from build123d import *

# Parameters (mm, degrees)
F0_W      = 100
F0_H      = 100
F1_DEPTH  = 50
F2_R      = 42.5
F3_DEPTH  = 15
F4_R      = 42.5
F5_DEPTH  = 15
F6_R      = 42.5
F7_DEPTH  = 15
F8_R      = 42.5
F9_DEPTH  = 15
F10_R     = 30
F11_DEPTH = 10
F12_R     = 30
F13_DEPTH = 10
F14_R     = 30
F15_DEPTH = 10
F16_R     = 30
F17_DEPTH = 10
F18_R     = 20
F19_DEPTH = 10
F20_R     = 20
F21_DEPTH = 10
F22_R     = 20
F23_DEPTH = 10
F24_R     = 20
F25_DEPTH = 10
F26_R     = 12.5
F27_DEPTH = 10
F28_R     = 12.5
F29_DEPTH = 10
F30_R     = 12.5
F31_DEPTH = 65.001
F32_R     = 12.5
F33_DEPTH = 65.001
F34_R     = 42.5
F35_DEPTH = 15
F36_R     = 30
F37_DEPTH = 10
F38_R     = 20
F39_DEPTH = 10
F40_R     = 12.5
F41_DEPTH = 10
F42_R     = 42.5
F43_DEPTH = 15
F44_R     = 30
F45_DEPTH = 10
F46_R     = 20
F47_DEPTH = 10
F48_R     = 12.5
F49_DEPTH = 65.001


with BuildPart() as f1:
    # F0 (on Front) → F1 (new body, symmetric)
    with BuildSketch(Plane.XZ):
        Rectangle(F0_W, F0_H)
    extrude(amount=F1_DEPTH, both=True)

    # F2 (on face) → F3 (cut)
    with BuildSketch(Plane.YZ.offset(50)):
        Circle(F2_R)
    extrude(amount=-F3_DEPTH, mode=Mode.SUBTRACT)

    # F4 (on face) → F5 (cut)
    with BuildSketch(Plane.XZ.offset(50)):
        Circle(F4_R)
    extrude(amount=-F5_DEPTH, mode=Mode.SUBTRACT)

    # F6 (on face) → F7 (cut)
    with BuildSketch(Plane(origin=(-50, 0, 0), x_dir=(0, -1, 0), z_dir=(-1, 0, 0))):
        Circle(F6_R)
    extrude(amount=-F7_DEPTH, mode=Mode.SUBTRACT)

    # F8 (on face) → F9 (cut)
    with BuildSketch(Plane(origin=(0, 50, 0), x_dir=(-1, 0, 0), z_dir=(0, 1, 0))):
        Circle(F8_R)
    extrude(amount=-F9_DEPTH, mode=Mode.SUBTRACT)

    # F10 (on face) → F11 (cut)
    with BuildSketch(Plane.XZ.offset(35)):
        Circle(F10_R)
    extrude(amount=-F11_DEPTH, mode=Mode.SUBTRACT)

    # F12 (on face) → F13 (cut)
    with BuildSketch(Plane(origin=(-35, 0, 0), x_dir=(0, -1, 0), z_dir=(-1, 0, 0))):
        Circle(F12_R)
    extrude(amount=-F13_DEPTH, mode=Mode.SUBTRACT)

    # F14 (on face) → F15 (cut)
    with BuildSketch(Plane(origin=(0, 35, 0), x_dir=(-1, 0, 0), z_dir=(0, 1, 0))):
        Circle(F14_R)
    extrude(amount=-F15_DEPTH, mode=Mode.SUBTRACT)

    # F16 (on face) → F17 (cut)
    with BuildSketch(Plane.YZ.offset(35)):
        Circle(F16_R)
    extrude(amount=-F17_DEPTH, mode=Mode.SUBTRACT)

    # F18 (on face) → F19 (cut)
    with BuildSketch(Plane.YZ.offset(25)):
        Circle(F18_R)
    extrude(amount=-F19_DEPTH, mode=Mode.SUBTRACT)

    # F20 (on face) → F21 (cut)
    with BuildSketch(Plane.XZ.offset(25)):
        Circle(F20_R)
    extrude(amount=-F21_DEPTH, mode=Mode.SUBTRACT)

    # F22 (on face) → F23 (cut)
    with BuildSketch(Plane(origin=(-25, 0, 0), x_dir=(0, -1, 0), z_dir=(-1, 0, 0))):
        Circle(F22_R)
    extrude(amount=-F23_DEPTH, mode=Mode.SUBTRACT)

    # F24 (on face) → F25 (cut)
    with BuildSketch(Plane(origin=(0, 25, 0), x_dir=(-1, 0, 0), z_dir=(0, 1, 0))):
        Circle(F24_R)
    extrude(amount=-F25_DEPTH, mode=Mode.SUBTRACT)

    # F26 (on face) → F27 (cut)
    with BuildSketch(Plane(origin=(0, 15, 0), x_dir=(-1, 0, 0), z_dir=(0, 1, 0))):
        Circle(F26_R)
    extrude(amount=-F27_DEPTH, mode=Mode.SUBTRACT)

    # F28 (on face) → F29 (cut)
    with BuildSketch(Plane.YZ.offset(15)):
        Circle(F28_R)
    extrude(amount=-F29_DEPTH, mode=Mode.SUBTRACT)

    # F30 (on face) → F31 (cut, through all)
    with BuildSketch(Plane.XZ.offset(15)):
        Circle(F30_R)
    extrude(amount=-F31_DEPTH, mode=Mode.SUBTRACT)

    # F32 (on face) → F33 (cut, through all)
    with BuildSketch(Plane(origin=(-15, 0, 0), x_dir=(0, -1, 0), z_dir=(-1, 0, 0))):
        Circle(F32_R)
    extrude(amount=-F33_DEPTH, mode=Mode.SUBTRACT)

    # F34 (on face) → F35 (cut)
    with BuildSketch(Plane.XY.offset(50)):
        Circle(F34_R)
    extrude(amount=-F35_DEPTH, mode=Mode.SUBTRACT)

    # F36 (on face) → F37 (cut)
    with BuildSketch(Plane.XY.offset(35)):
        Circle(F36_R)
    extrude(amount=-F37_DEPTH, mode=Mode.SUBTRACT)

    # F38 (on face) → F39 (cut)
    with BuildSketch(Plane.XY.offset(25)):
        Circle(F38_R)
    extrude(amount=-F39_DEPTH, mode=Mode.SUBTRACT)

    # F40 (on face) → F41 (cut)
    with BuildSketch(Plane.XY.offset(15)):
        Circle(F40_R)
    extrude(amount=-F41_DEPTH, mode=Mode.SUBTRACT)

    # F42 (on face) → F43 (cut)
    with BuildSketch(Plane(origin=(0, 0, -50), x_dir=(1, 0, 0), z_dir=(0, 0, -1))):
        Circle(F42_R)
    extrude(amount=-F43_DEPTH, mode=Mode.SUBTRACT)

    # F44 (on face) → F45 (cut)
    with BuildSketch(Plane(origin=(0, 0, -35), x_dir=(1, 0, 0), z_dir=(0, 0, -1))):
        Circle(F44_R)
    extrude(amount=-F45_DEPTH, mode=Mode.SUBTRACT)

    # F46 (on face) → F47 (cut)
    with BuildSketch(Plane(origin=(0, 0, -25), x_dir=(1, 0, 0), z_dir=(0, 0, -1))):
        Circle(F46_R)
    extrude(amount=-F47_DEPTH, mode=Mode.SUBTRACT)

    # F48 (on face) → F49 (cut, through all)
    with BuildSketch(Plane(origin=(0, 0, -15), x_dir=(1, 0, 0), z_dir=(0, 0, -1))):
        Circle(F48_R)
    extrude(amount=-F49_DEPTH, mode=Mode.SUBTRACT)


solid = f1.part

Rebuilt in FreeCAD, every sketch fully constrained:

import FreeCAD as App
import Part
import Sketcher
Q = App.Units.Quantity

doc = App.newDocument("Part")
body = doc.addObject("PartDesign::Body", "Body")

# Sketch on XZ plane
sketch1 = doc.addObject("Sketcher::SketchObject", "Sketch")
body.addObject(sketch1)
sketch1.AttachmentSupport = (doc.XZ_Plane, [""])
sketch1.MapMode = "FlatFace"
sketch1.addGeometry([
    Part.LineSegment(App.Vector(-50, 50, 0), App.Vector(-50, -50, 0)),
    Part.LineSegment(App.Vector(-50, -50, 0), App.Vector(50, -50, 0)),
    Part.LineSegment(App.Vector(50, -50, 0), App.Vector(50, 50, 0)),
    Part.LineSegment(App.Vector(50, 50, 0), App.Vector(-50, 50, 0)),
], False)
sketch1.addConstraint([
    Sketcher.Constraint("Coincident", 0, 2, 1, 1),
    Sketcher.Constraint("Coincident", 1, 2, 2, 1),
    Sketcher.Constraint("Coincident", 2, 2, 3, 1),
    Sketcher.Constraint("Coincident", 3, 2, 0, 1),
    Sketcher.Constraint("Vertical", 0),
    Sketcher.Constraint("Horizontal", 1),
    Sketcher.Constraint("Vertical", 2),
    Sketcher.Constraint("Horizontal", 3),
    Sketcher.Constraint("Symmetric", 0, 2, 2, 2, -1, 1),
    Sketcher.Constraint("Equal", 3, 0),
    Sketcher.Constraint("DistanceX", 1, 1, 1, 2, Q("100 mm")),
])
pad1 = doc.addObject("PartDesign::Pad", "Pad")
body.addObject(pad1)
pad1.Profile = sketch1
pad1.Length = 100
pad1.Midplane = True

# Sketch on YZ plane
sketch2 = doc.addObject("Sketcher::SketchObject", "Sketch001")
body.addObject(sketch2)
sketch2.AttachmentSupport = (doc.YZ_Plane, [""])
sketch2.MapMode = "FlatFace"
sketch2.AttachmentOffset = App.Placement(App.Vector(0, 0, 50), App.Rotation())
sketch2.addGeometry(Part.Circle(App.Vector(0, 0, 0), App.Vector(0, 0, 1), 42), False)
sketch2.addConstraint([
    Sketcher.Constraint("Coincident", 0, 3, -1, 1),
    Sketcher.Constraint("Diameter", 0, Q("85 mm")),
])
pocket1 = doc.addObject("PartDesign::Pocket", "Pocket")
body.addObject(pocket1)
pocket1.Profile = sketch2
pocket1.Length = 15

# Sketch on XZ plane
sketch3 = doc.addObject("Sketcher::SketchObject", "Sketch002")
body.addObject(sketch3)
sketch3.AttachmentSupport = (doc.XZ_Plane, [""])
sketch3.MapMode = "FlatFace"
sketch3.AttachmentOffset = App.Placement(App.Vector(0, 0, 50), App.Rotation())
sketch3.addGeometry(Part.Circle(App.Vector(0, 0, 0), App.Vector(0, 0, 1), 42), False)
sketch3.addConstraint([
    Sketcher.Constraint("Coincident", 0, 3, -1, 1),
    Sketcher.Constraint("Diameter", 0, Q("85 mm")),
])
pocket2 = doc.addObject("PartDesign::Pocket", "Pocket001")
body.addObject(pocket2)
pocket2.Profile = sketch3
pocket2.Length = 15

# Sketch on YZ plane
sketch4 = doc.addObject("Sketcher::SketchObject", "Sketch003")
body.addObject(sketch4)
sketch4.AttachmentSupport = (doc.YZ_Plane, [""])
sketch4.MapMode = "FlatFace"
sketch4.AttachmentOffset = App.Placement(App.Vector(0, 0, -50), App.Rotation())
sketch4.addGeometry(Part.Circle(App.Vector(0, 0, 0), App.Vector(0, 0, 1), 42), False)
sketch4.addConstraint([
    Sketcher.Constraint("Coincident", 0, 3, -1, 1),
    Sketcher.Constraint("Diameter", 0, Q("85 mm")),
])
pocket3 = doc.addObject("PartDesign::Pocket", "Pocket002")
body.addObject(pocket3)
pocket3.Profile = sketch4
pocket3.Length = 15
pocket3.Reversed = True

# Sketch on XZ plane
sketch5 = doc.addObject("Sketcher::SketchObject", "Sketch004")
body.addObject(sketch5)
sketch5.AttachmentSupport = (doc.XZ_Plane, [""])
sketch5.MapMode = "FlatFace"
sketch5.AttachmentOffset = App.Placement(App.Vector(0, 0, -50), App.Rotation())
sketch5.addGeometry(Part.Circle(App.Vector(0, 0, 0), App.Vector(0, 0, 1), 42), False)
sketch5.addConstraint([
    Sketcher.Constraint("Coincident", 0, 3, -1, 1),
    Sketcher.Constraint("Diameter", 0, Q("85 mm")),
])
pocket4 = doc.addObject("PartDesign::Pocket", "Pocket003")
body.addObject(pocket4)
pocket4.Profile = sketch5
pocket4.Length = 15
pocket4.Reversed = True

# Sketch on XZ plane
sketch6 = doc.addObject("Sketcher::SketchObject", "Sketch005")
body.addObject(sketch6)
sketch6.AttachmentSupport = (doc.XZ_Plane, [""])
sketch6.MapMode = "FlatFace"
sketch6.AttachmentOffset = App.Placement(App.Vector(0, 0, 35), App.Rotation())
sketch6.addGeometry(Part.Circle(App.Vector(0, 0, 0), App.Vector(0, 0, 1), 30), False)
sketch6.addConstraint([
    Sketcher.Constraint("Coincident", 0, 3, -1, 1),
    Sketcher.Constraint("Diameter", 0, Q("60 mm")),
])
pocket5 = doc.addObject("PartDesign::Pocket", "Pocket004")
body.addObject(pocket5)
pocket5.Profile = sketch6
pocket5.Length = 10

# Sketch on YZ plane
sketch7 = doc.addObject("Sketcher::SketchObject", "Sketch006")
body.addObject(sketch7)
sketch7.AttachmentSupport = (doc.YZ_Plane, [""])
sketch7.MapMode = "FlatFace"
sketch7.AttachmentOffset = App.Placement(App.Vector(0, 0, -35), App.Rotation())
sketch7.addGeometry(Part.Circle(App.Vector(0, 0, 0), App.Vector(0, 0, 1), 30), False)
sketch7.addConstraint([
    Sketcher.Constraint("Coincident", 0, 3, -1, 1),
    Sketcher.Constraint("Diameter", 0, Q("60 mm")),
])
pocket6 = doc.addObject("PartDesign::Pocket", "Pocket005")
body.addObject(pocket6)
pocket6.Profile = sketch7
pocket6.Length = 10
pocket6.Reversed = True

# Sketch on XZ plane
sketch8 = doc.addObject("Sketcher::SketchObject", "Sketch007")
body.addObject(sketch8)
sketch8.AttachmentSupport = (doc.XZ_Plane, [""])
sketch8.MapMode = "FlatFace"
sketch8.AttachmentOffset = App.Placement(App.Vector(0, 0, -35), App.Rotation())
sketch8.addGeometry(Part.Circle(App.Vector(0, 0, 0), App.Vector(0, 0, 1), 30), False)
sketch8.addConstraint([
    Sketcher.Constraint("Coincident", 0, 3, -1, 1),
    Sketcher.Constraint("Diameter", 0, Q("60 mm")),
])
pocket7 = doc.addObject("PartDesign::Pocket", "Pocket006")
body.addObject(pocket7)
pocket7.Profile = sketch8
pocket7.Length = 10
pocket7.Reversed = True

# Sketch on YZ plane
sketch9 = doc.addObject("Sketcher::SketchObject", "Sketch008")
body.addObject(sketch9)
sketch9.AttachmentSupport = (doc.YZ_Plane, [""])
sketch9.MapMode = "FlatFace"
sketch9.AttachmentOffset = App.Placement(App.Vector(0, 0, 35), App.Rotation())
sketch9.addGeometry(Part.Circle(App.Vector(0, 0, 0), App.Vector(0, 0, 1), 30), False)
sketch9.addConstraint([
    Sketcher.Constraint("Coincident", 0, 3, -1, 1),
    Sketcher.Constraint("Diameter", 0, Q("60 mm")),
])
pocket8 = doc.addObject("PartDesign::Pocket", "Pocket007")
body.addObject(pocket8)
pocket8.Profile = sketch9
pocket8.Length = 10

# Sketch on YZ plane
sketch10 = doc.addObject("Sketcher::SketchObject", "Sketch009")
body.addObject(sketch10)
sketch10.AttachmentSupport = (doc.YZ_Plane, [""])
sketch10.MapMode = "FlatFace"
sketch10.AttachmentOffset = App.Placement(App.Vector(0, 0, 25), App.Rotation())
sketch10.addGeometry(Part.Circle(App.Vector(0, 0, 0), App.Vector(0, 0, 1), 20), False)
sketch10.addConstraint([
    Sketcher.Constraint("Coincident", 0, 3, -1, 1),
    Sketcher.Constraint("Diameter", 0, Q("40 mm")),
])
pocket9 = doc.addObject("PartDesign::Pocket", "Pocket008")
body.addObject(pocket9)
pocket9.Profile = sketch10
pocket9.Length = 10

# Sketch on XZ plane
sketch11 = doc.addObject("Sketcher::SketchObject", "Sketch010")
body.addObject(sketch11)
sketch11.AttachmentSupport = (doc.XZ_Plane, [""])
sketch11.MapMode = "FlatFace"
sketch11.AttachmentOffset = App.Placement(App.Vector(0, 0, 25), App.Rotation())
sketch11.addGeometry(Part.Circle(App.Vector(0, 0, 0), App.Vector(0, 0, 1), 20), False)
sketch11.addConstraint([
    Sketcher.Constraint("Coincident", 0, 3, -1, 1),
    Sketcher.Constraint("Diameter", 0, Q("40 mm")),
])
pocket10 = doc.addObject("PartDesign::Pocket", "Pocket009")
body.addObject(pocket10)
pocket10.Profile = sketch11
pocket10.Length = 10

# Sketch on YZ plane
sketch12 = doc.addObject("Sketcher::SketchObject", "Sketch011")
body.addObject(sketch12)
sketch12.AttachmentSupport = (doc.YZ_Plane, [""])
sketch12.MapMode = "FlatFace"
sketch12.AttachmentOffset = App.Placement(App.Vector(0, 0, -25), App.Rotation())
sketch12.addGeometry(Part.Circle(App.Vector(0, 0, 0), App.Vector(0, 0, 1), 20), False)
sketch12.addConstraint([
    Sketcher.Constraint("Coincident", 0, 3, -1, 1),
    Sketcher.Constraint("Diameter", 0, Q("40 mm")),
])
pocket11 = doc.addObject("PartDesign::Pocket", "Pocket010")
body.addObject(pocket11)
pocket11.Profile = sketch12
pocket11.Length = 10
pocket11.Reversed = True

# Sketch on XZ plane
sketch13 = doc.addObject("Sketcher::SketchObject", "Sketch012")
body.addObject(sketch13)
sketch13.AttachmentSupport = (doc.XZ_Plane, [""])
sketch13.MapMode = "FlatFace"
sketch13.AttachmentOffset = App.Placement(App.Vector(0, 0, -25), App.Rotation())
sketch13.addGeometry(Part.Circle(App.Vector(0, 0, 0), App.Vector(0, 0, 1), 20), False)
sketch13.addConstraint([
    Sketcher.Constraint("Coincident", 0, 3, -1, 1),
    Sketcher.Constraint("Diameter", 0, Q("40 mm")),
])
pocket12 = doc.addObject("PartDesign::Pocket", "Pocket011")
body.addObject(pocket12)
pocket12.Profile = sketch13
pocket12.Length = 10
pocket12.Reversed = True

# Sketch on XZ plane
sketch14 = doc.addObject("Sketcher::SketchObject", "Sketch013")
body.addObject(sketch14)
sketch14.AttachmentSupport = (doc.XZ_Plane, [""])
sketch14.MapMode = "FlatFace"
sketch14.AttachmentOffset = App.Placement(App.Vector(0, 0, -15), App.Rotation())
sketch14.addGeometry(Part.Circle(App.Vector(0, 0, 0), App.Vector(0, 0, 1), 12), False)
sketch14.addConstraint([
    Sketcher.Constraint("Coincident", 0, 3, -1, 1),
    Sketcher.Constraint("Diameter", 0, Q("25 mm")),
])
pocket13 = doc.addObject("PartDesign::Pocket", "Pocket012")
body.addObject(pocket13)
pocket13.Profile = sketch14
pocket13.Length = 10
pocket13.Reversed = True

# Sketch on YZ plane
sketch15 = doc.addObject("Sketcher::SketchObject", "Sketch014")
body.addObject(sketch15)
sketch15.AttachmentSupport = (doc.YZ_Plane, [""])
sketch15.MapMode = "FlatFace"
sketch15.AttachmentOffset = App.Placement(App.Vector(0, 0, 15), App.Rotation())
sketch15.addGeometry(Part.Circle(App.Vector(0, 0, 0), App.Vector(0, 0, 1), 12), False)
sketch15.addConstraint([
    Sketcher.Constraint("Coincident", 0, 3, -1, 1),
    Sketcher.Constraint("Diameter", 0, Q("25 mm")),
])
pocket14 = doc.addObject("PartDesign::Pocket", "Pocket013")
body.addObject(pocket14)
pocket14.Profile = sketch15
pocket14.Length = 10

# Sketch on XZ plane
sketch16 = doc.addObject("Sketcher::SketchObject", "Sketch015")
body.addObject(sketch16)
sketch16.AttachmentSupport = (doc.XZ_Plane, [""])
sketch16.MapMode = "FlatFace"
sketch16.AttachmentOffset = App.Placement(App.Vector(0, 0, 15), App.Rotation())
sketch16.addGeometry(Part.Circle(App.Vector(0, 0, 0), App.Vector(0, 0, 1), 12), False)
sketch16.addConstraint([
    Sketcher.Constraint("Coincident", 0, 3, -1, 1),
    Sketcher.Constraint("Diameter", 0, Q("25 mm")),
])
pocket15 = doc.addObject("PartDesign::Pocket", "Pocket014")
body.addObject(pocket15)
pocket15.Profile = sketch16
pocket15.Type = "ThroughAll"

# Sketch on YZ plane
sketch17 = doc.addObject("Sketcher::SketchObject", "Sketch016")
body.addObject(sketch17)
sketch17.AttachmentSupport = (doc.YZ_Plane, [""])
sketch17.MapMode = "FlatFace"
sketch17.AttachmentOffset = App.Placement(App.Vector(0, 0, -15), App.Rotation())
sketch17.addGeometry(Part.Circle(App.Vector(0, 0, 0), App.Vector(0, 0, 1), 12), False)
sketch17.addConstraint([
    Sketcher.Constraint("Coincident", 0, 3, -1, 1),
    Sketcher.Constraint("Diameter", 0, Q("25 mm")),
])
pocket16 = doc.addObject("PartDesign::Pocket", "Pocket015")
body.addObject(pocket16)
pocket16.Profile = sketch17
pocket16.Type = "ThroughAll"
pocket16.Reversed = True

# Sketch on XY plane
sketch18 = doc.addObject("Sketcher::SketchObject", "Sketch017")
body.addObject(sketch18)
sketch18.AttachmentSupport = (doc.XY_Plane, [""])
sketch18.MapMode = "FlatFace"
sketch18.AttachmentOffset = App.Placement(App.Vector(0, 0, 50), App.Rotation())
sketch18.addGeometry(Part.Circle(App.Vector(0, 0, 0), App.Vector(0, 0, 1), 42), False)
sketch18.addConstraint([
    Sketcher.Constraint("Coincident", 0, 3, -1, 1),
    Sketcher.Constraint("Diameter", 0, Q("85 mm")),
])
pocket17 = doc.addObject("PartDesign::Pocket", "Pocket016")
body.addObject(pocket17)
pocket17.Profile = sketch18
pocket17.Length = 15

# Sketch on XY plane
sketch19 = doc.addObject("Sketcher::SketchObject", "Sketch018")
body.addObject(sketch19)
sketch19.AttachmentSupport = (doc.XY_Plane, [""])
sketch19.MapMode = "FlatFace"
sketch19.AttachmentOffset = App.Placement(App.Vector(0, 0, 35), App.Rotation())
sketch19.addGeometry(Part.Circle(App.Vector(0, 0, 0), App.Vector(0, 0, 1), 30), False)
sketch19.addConstraint([
    Sketcher.Constraint("Coincident", 0, 3, -1, 1),
    Sketcher.Constraint("Diameter", 0, Q("60 mm")),
])
pocket18 = doc.addObject("PartDesign::Pocket", "Pocket017")
body.addObject(pocket18)
pocket18.Profile = sketch19
pocket18.Length = 10

# Sketch on XY plane
sketch20 = doc.addObject("Sketcher::SketchObject", "Sketch019")
body.addObject(sketch20)
sketch20.AttachmentSupport = (doc.XY_Plane, [""])
sketch20.MapMode = "FlatFace"
sketch20.AttachmentOffset = App.Placement(App.Vector(0, 0, 25), App.Rotation())
sketch20.addGeometry(Part.Circle(App.Vector(0, 0, 0), App.Vector(0, 0, 1), 20), False)
sketch20.addConstraint([
    Sketcher.Constraint("Coincident", 0, 3, -1, 1),
    Sketcher.Constraint("Diameter", 0, Q("40 mm")),
])
pocket19 = doc.addObject("PartDesign::Pocket", "Pocket018")
body.addObject(pocket19)
pocket19.Profile = sketch20
pocket19.Length = 10

# Sketch on XY plane
sketch21 = doc.addObject("Sketcher::SketchObject", "Sketch020")
body.addObject(sketch21)
sketch21.AttachmentSupport = (doc.XY_Plane, [""])
sketch21.MapMode = "FlatFace"
sketch21.AttachmentOffset = App.Placement(App.Vector(0, 0, 15), App.Rotation())
sketch21.addGeometry(Part.Circle(App.Vector(0, 0, 0), App.Vector(0, 0, 1), 12), False)
sketch21.addConstraint([
    Sketcher.Constraint("Coincident", 0, 3, -1, 1),
    Sketcher.Constraint("Diameter", 0, Q("25 mm")),
])
pocket20 = doc.addObject("PartDesign::Pocket", "Pocket019")
body.addObject(pocket20)
pocket20.Profile = sketch21
pocket20.Length = 10

# Sketch on XY plane
sketch22 = doc.addObject("Sketcher::SketchObject", "Sketch021")
body.addObject(sketch22)
sketch22.AttachmentSupport = (doc.XY_Plane, [""])
sketch22.MapMode = "FlatFace"
sketch22.AttachmentOffset = App.Placement(App.Vector(0, 0, -50), App.Rotation())
sketch22.addGeometry(Part.Circle(App.Vector(0, 0, 0), App.Vector(0, 0, 1), 42), False)
sketch22.addConstraint([
    Sketcher.Constraint("Coincident", 0, 3, -1, 1),
    Sketcher.Constraint("Diameter", 0, Q("85 mm")),
])
pocket21 = doc.addObject("PartDesign::Pocket", "Pocket020")
body.addObject(pocket21)
pocket21.Profile = sketch22
pocket21.Length = 15
pocket21.Reversed = True

# Sketch on XY plane
sketch23 = doc.addObject("Sketcher::SketchObject", "Sketch022")
body.addObject(sketch23)
sketch23.AttachmentSupport = (doc.XY_Plane, [""])
sketch23.MapMode = "FlatFace"
sketch23.AttachmentOffset = App.Placement(App.Vector(0, 0, -35), App.Rotation())
sketch23.addGeometry(Part.Circle(App.Vector(0, 0, 0), App.Vector(0, 0, 1), 30), False)
sketch23.addConstraint([
    Sketcher.Constraint("Coincident", 0, 3, -1, 1),
    Sketcher.Constraint("Diameter", 0, Q("60 mm")),
])
pocket22 = doc.addObject("PartDesign::Pocket", "Pocket021")
body.addObject(pocket22)
pocket22.Profile = sketch23
pocket22.Length = 10
pocket22.Reversed = True

# Sketch on XY plane
sketch24 = doc.addObject("Sketcher::SketchObject", "Sketch023")
body.addObject(sketch24)
sketch24.AttachmentSupport = (doc.XY_Plane, [""])
sketch24.MapMode = "FlatFace"
sketch24.AttachmentOffset = App.Placement(App.Vector(0, 0, -25), App.Rotation())
sketch24.addGeometry(Part.Circle(App.Vector(0, 0, 0), App.Vector(0, 0, 1), 20), False)
sketch24.addConstraint([
    Sketcher.Constraint("Coincident", 0, 3, -1, 1),
    Sketcher.Constraint("Diameter", 0, Q("40 mm")),
])
pocket23 = doc.addObject("PartDesign::Pocket", "Pocket022")
body.addObject(pocket23)
pocket23.Profile = sketch24
pocket23.Length = 10
pocket23.Reversed = True

# Sketch on XY plane
sketch25 = doc.addObject("Sketcher::SketchObject", "Sketch024")
body.addObject(sketch25)
sketch25.AttachmentSupport = (doc.XY_Plane, [""])
sketch25.MapMode = "FlatFace"
sketch25.AttachmentOffset = App.Placement(App.Vector(0, 0, -15), App.Rotation())
sketch25.addGeometry(Part.Circle(App.Vector(0, 0, 0), App.Vector(0, 0, 1), 12), False)
sketch25.addConstraint([
    Sketcher.Constraint("Coincident", 0, 3, -1, 1),
    Sketcher.Constraint("Diameter", 0, Q("25 mm")),
])
pocket24 = doc.addObject("PartDesign::Pocket", "Pocket023")
body.addObject(pocket24)
pocket24.Profile = sketch25
pocket24.Type = "ThroughAll"
pocket24.Reversed = True

doc.recompute()
